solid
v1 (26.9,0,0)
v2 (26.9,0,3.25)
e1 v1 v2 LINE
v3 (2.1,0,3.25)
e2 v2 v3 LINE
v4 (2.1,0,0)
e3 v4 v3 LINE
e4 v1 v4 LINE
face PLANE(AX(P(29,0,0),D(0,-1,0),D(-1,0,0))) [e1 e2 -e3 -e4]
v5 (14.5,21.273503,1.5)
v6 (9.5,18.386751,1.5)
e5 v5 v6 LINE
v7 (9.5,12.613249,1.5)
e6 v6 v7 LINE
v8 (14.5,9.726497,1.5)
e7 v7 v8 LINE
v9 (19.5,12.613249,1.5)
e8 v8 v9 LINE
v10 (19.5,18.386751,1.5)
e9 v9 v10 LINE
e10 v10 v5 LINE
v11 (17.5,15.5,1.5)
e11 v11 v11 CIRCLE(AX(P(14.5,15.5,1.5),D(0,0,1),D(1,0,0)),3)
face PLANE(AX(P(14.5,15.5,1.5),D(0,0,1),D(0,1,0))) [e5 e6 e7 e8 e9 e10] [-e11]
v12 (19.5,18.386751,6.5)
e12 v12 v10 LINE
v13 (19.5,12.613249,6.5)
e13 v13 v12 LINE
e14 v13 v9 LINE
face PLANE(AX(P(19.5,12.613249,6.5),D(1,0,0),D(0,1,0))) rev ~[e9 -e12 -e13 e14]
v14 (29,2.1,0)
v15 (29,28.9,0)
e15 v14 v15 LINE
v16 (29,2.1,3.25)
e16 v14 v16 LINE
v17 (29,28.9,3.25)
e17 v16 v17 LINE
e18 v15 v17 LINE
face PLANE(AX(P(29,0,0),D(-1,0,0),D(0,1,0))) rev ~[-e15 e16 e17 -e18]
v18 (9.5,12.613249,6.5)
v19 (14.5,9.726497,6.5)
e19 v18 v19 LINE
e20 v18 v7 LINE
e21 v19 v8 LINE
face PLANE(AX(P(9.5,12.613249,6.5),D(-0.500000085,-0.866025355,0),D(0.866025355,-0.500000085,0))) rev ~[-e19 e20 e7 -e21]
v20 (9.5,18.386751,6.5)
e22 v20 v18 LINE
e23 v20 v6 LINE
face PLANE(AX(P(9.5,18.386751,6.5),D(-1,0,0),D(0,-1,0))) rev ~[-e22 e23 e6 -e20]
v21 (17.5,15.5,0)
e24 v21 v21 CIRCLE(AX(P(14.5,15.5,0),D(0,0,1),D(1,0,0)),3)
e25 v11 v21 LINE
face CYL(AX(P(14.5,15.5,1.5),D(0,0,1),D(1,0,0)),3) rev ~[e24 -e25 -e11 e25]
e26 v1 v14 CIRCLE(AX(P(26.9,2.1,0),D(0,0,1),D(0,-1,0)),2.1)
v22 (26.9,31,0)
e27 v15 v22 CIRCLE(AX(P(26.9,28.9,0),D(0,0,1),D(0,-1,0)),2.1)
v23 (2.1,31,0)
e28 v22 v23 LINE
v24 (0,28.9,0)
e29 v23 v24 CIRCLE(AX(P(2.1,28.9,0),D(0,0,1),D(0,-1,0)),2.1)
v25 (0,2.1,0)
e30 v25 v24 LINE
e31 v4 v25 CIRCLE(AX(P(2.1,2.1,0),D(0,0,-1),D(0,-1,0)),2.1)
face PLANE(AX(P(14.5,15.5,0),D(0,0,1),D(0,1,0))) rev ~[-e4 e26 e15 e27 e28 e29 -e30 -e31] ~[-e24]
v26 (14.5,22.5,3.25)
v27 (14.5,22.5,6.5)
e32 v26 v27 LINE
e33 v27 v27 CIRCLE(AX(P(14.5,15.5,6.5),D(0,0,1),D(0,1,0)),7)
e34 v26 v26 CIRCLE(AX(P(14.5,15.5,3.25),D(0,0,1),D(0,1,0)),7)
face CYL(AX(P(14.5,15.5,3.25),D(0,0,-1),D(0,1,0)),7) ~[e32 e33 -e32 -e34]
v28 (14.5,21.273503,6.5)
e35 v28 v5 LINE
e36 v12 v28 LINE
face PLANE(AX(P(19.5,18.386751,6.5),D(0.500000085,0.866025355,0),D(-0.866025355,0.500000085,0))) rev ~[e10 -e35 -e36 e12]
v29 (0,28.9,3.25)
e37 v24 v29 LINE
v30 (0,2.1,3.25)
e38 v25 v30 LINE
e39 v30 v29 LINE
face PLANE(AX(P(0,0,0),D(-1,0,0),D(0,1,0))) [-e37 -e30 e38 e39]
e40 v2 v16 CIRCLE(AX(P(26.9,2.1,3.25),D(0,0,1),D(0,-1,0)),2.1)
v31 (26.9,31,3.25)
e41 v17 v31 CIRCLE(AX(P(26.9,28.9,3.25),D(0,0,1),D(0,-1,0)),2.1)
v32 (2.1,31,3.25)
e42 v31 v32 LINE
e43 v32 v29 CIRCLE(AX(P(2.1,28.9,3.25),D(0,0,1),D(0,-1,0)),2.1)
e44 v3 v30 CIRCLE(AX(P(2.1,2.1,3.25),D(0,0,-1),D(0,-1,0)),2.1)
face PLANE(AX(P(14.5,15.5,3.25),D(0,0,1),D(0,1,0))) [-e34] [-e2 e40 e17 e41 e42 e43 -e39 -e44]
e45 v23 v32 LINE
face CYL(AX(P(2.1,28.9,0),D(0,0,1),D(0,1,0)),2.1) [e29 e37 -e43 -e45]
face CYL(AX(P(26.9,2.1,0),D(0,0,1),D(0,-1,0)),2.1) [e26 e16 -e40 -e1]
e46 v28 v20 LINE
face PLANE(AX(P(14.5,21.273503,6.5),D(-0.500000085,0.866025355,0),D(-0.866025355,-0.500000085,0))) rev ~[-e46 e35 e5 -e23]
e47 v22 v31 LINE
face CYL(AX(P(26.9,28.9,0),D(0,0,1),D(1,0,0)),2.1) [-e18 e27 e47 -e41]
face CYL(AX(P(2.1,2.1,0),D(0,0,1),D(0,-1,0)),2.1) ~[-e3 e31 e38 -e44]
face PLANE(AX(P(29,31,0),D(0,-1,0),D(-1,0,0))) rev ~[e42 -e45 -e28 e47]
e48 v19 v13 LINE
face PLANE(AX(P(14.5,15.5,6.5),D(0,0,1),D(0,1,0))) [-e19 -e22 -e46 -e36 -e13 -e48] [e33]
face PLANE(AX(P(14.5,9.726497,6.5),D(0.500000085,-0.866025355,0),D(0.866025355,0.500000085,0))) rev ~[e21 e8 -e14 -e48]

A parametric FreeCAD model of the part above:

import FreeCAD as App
import Part
import Sketcher
from FreeCAD import Vector
Q = App.Units.Quantity


def edges_at(feature, points):
    """Names of the edges that pass closest to the given points."""
    edges = feature.Shape.Edges
    near = lambda p: min(range(len(edges)), key=lambda i: edges[i].distToShape(Part.Vertex(*p))[0])
    return sorted({f"Edge{near(p) + 1}" for p in points})


def add_polygon(sketch, points):
    """Adds a closed chain of lines whose ends are joined by coincident constraints."""
    first, n = sketch.GeometryCount, len(points)
    for a, b in zip(points, points[1:] + points[:1]):
        sketch.addGeometry(Part.LineSegment(App.Vector(*a, 0), App.Vector(*b, 0)), False)
    for i in range(n):
        sketch.addConstraint(Sketcher.Constraint("Coincident", first + i, 2, first + (i + 1) % n, 1))

doc = App.newDocument("Part")
body = doc.addObject("PartDesign::Body", "Body")

sketch1 = body.newObject("Sketcher::SketchObject", "Sketch")
sketch1.AttachmentSupport = (doc.getObject("XY_Plane"), [""])
sketch1.MapMode = "FlatFace"
sketch1.AttachmentOffset = App.Placement(Vector(0, 0, 1.5), App.Rotation())
sketch1.addGeometry(Part.Circle(Vector(14.5, 15.5, 0), Vector(0, 0, 1), 3), False)
sketch1.addConstraint([
    Sketcher.Constraint("Diameter", 0, 6.0),
    Sketcher.Constraint("DistanceX", -1, 1, 0, 3, 14.5),
    Sketcher.Constraint("DistanceY", -1, 1, 0, 3, 15.5),
])
pad1 = body.newObject("PartDesign::Pad", "Pad")
pad1.Profile = sketch1
pad1.Length = 10
pad1.Reversed = True
body2 = doc.addObject("PartDesign::Body", "Body001")

sketch2 = body2.newObject("Sketcher::SketchObject", "Sketch001")
sketch2.AttachmentSupport = (doc.getObject("XY_Plane001"), [""])
sketch2.MapMode = "FlatFace"
sketch2.AttachmentOffset = App.Placement(Vector(0, 0, 6.5), App.Rotation())
add_polygon(sketch2, [(20, 13), (20, 18), (14, 21), (10, 18), (10, 13), (14, 10)])
sketch2.addConstraint([
    Sketcher.Constraint("Vertical", 0),
    Sketcher.Constraint("Vertical", 3),
    Sketcher.Constraint("Parallel", 1, 4),
    Sketcher.Constraint("Parallel", 2, 5),
    Sketcher.Constraint("Horizontal", 0, 2, 2, 2),
    Sketcher.Constraint("Horizontal", 3, 2, 5, 2),
    Sketcher.Constraint("Vertical", 1, 2, 4, 2),
    Sketcher.Constraint("Angle", 1, Q("149.999994 deg")),
    Sketcher.Constraint("DistanceX", 1, 2, 0, 2, 5.0),
    Sketcher.Constraint("DistanceX", -1, 1, 0, 2, 19.5),
    Sketcher.Constraint("DistanceY", 0, 1, 0, 2, 5.773502),
    Sketcher.Constraint("DistanceY", -1, 1, 0, 2, 18.386751),
])
pad2 = body2.newObject("PartDesign::Pad", "Pad001")
pad2.Profile = sketch2
pad2.Length = 5
pad2.Reversed = True
body3 = doc.addObject("PartDesign::Body", "Body002")

sketch3 = body3.newObject("Sketcher::SketchObject", "Sketch002")
sketch3.AttachmentSupport = (doc.getObject("XY_Plane002"), [""])
sketch3.MapMode = "FlatFace"
sketch3.AttachmentOffset = App.Placement(Vector(0, 0, 3.25), App.Rotation())
sketch3.addGeometry(Part.Circle(Vector(14, 16, 0), Vector(0, 0, 1), 7), False)
sketch3.addConstraint([
    Sketcher.Constraint("Diameter", 0, 14.0),
    Sketcher.Constraint("DistanceX", -1, 1, 0, 3, 14.5),
    Sketcher.Constraint("DistanceY", -1, 1, 0, 3, 15.5),
])
pad3 = body3.newObject("PartDesign::Pad", "Pad002")
pad3.Profile = sketch3
pad3.Length = 3.25
body4 = doc.addObject("PartDesign::Body", "Body003")

sketch4 = body4.newObject("Sketcher::SketchObject", "Sketch003")
sketch4.AttachmentSupport = (doc.getObject("XY_Plane003"), [""])
sketch4.MapMode = "FlatFace"
add_polygon(sketch4, [(0, 0), (29, 0), (29, 31), (0, 31)])
sketch4.addConstraint([
    Sketcher.Constraint("Horizontal", 0),
    Sketcher.Constraint("Vertical", 1),
    Sketcher.Constraint("Horizontal", 2),
    Sketcher.Constraint("Vertical", 3),
    Sketcher.Constraint("Coincident", 3, 2, -1, 1),
    Sketcher.Constraint("DistanceX", 0, 1, 0, 2, 29.0),
    Sketcher.Constraint("DistanceY", 1, 1, 1, 2, 31.0),
])
pad4 = body4.newObject("PartDesign::Pad", "Pad003")
pad4.Profile = sketch4
pad4.Length = 3.25
doc.recompute()

fillet = body4.newObject("PartDesign::Fillet", "Fillet")
fillet.Base = (pad4, edges_at(pad4, [
    (0, 0, 1.625),
    (29, 0, 1.625),
    (29, 31, 1.625),
    (0, 31, 1.625),
]))
fillet.Radius = 2.1
doc.recompute()

boolean = body4.newObject("PartDesign::Boolean", "Boolean")
boolean.Type = "Fuse"
boolean.addObjects([body3])
doc.recompute()

boolean2 = body4.newObject("PartDesign::Boolean", "Boolean001")
boolean2.Type = "Cut"
boolean2.addObjects([body2])
doc.recompute()

boolean3 = body4.newObject("PartDesign::Boolean", "Boolean002")
boolean3.Type = "Cut"
boolean3.addObjects([body])

doc.recompute()
